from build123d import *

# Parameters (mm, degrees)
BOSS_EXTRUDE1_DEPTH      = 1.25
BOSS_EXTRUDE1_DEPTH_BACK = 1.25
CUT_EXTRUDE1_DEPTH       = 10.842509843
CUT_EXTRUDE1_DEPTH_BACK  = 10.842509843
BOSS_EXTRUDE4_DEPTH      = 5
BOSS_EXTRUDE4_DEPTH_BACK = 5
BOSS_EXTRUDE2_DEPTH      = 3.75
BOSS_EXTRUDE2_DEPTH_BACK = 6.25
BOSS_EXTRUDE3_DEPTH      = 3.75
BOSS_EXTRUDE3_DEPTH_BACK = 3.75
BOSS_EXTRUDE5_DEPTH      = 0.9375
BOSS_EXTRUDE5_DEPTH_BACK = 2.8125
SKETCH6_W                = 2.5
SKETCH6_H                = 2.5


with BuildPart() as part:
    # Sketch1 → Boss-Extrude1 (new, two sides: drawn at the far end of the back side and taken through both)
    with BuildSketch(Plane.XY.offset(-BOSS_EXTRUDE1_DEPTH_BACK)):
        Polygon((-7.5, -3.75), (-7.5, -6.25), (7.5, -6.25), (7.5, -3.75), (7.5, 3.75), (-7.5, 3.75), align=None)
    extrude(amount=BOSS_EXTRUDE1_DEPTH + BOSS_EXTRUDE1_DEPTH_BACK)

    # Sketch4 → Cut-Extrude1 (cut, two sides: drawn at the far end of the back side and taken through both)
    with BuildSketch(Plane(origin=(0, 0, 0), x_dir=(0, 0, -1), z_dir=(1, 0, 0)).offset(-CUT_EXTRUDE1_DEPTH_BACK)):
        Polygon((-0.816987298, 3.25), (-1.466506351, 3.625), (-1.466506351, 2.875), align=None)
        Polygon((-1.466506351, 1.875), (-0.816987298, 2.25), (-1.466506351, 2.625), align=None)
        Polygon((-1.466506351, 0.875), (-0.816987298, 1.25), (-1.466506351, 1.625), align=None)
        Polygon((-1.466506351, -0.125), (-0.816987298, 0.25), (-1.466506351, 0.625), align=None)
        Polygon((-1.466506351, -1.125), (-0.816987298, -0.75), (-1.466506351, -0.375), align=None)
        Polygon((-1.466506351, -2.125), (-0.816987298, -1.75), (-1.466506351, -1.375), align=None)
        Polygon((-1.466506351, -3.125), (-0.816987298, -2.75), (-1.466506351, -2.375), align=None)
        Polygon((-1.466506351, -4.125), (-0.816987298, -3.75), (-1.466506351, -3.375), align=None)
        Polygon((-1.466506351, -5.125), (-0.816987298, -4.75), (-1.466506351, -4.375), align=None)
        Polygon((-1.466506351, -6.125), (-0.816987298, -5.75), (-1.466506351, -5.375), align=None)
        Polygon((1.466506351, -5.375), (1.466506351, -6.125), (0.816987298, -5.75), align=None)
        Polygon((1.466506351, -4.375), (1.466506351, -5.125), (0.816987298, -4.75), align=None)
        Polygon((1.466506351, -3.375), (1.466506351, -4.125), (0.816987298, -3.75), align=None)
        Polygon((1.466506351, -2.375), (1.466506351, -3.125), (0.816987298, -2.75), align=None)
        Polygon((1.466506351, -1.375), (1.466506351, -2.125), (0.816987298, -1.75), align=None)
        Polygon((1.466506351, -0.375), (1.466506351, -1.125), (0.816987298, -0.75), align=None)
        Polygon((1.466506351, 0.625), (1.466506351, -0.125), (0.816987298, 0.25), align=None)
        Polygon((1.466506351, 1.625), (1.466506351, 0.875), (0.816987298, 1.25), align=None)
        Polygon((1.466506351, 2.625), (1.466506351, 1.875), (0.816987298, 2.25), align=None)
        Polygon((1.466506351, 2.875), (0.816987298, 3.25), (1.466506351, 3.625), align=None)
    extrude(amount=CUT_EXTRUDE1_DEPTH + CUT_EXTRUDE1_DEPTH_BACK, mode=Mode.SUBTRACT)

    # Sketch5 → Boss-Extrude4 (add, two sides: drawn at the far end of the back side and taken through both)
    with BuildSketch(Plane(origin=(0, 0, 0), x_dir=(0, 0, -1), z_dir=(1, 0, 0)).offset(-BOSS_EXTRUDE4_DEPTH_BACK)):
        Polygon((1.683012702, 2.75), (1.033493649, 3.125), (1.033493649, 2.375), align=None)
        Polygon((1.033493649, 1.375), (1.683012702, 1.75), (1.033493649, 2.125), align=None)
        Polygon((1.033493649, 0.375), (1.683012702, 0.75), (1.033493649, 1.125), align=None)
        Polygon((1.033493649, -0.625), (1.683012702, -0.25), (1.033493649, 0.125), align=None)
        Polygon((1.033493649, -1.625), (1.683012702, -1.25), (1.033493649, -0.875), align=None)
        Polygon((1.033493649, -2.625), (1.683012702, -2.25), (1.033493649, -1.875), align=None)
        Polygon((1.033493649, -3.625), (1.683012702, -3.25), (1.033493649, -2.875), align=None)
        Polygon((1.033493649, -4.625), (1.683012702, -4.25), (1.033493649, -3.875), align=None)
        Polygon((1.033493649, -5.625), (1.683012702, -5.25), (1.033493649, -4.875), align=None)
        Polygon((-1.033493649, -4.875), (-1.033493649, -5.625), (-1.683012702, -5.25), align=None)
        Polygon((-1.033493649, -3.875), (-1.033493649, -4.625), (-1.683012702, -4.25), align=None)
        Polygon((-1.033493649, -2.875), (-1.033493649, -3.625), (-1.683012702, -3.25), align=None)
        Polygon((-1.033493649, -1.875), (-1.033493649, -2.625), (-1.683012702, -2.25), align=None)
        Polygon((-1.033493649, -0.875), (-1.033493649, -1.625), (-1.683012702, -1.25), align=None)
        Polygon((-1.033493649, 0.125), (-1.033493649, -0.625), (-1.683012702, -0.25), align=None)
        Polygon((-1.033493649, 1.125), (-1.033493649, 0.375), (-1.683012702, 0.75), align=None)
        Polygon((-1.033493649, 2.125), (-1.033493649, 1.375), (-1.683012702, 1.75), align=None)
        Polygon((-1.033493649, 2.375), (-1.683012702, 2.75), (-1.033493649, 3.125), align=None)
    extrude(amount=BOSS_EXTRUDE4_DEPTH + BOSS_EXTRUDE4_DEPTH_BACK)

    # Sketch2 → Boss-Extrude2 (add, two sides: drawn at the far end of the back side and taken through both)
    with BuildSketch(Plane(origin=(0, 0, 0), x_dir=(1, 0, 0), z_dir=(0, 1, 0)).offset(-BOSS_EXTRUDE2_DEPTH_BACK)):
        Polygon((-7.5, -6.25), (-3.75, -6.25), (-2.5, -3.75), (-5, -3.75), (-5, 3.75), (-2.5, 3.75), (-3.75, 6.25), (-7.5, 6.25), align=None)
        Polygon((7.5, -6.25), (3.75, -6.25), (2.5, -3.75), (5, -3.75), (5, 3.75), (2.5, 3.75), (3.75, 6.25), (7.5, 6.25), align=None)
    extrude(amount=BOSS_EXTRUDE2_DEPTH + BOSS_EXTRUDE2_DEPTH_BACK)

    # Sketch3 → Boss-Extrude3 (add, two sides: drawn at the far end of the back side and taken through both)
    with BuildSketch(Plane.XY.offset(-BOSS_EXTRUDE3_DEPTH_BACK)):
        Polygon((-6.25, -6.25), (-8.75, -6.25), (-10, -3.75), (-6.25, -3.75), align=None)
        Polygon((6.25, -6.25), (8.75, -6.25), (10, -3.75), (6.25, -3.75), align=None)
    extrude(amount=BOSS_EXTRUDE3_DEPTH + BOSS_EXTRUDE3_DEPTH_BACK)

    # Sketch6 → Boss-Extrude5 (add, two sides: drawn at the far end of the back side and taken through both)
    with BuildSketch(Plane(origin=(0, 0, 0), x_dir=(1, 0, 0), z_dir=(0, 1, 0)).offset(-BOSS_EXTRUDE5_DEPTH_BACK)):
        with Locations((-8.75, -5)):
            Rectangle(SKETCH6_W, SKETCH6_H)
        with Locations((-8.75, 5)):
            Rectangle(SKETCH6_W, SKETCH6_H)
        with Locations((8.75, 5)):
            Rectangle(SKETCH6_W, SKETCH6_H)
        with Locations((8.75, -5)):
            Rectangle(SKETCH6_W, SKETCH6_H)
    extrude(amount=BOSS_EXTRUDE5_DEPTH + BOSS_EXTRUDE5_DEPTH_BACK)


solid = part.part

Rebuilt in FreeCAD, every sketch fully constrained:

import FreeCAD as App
import Part
import Sketcher

V = App.Vector
Q = App.Units.Quantity

doc = App.newDocument("Part")
body = doc.addObject("PartDesign::Body", "Body")

sketch1 = doc.addObject("Sketcher::SketchObject", "Sketch")
body.addObject(sketch1)
sketch1.AttachmentSupport = (doc.XY_Plane, [""])
sketch1.MapMode = "FlatFace"
sketch1.addGeometry([
    Part.LineSegment(V(-8, -6, 0), V(8, -6, 0)),
    Part.LineSegment(V(8, -6, 0), V(8, 4, 0)),
    Part.LineSegment(V(8, 4, 0), V(-8, 4, 0)),
    Part.LineSegment(V(-8, 4, 0), V(-8, -6, 0)),
], False)
sketch1.addConstraint([
    Sketcher.Constraint("Coincident", 0, 2, 1, 1),
    Sketcher.Constraint("Coincident", 1, 2, 2, 1),
    Sketcher.Constraint("Coincident", 2, 2, 3, 1),
    Sketcher.Constraint("Coincident", 3, 2, 0, 1),
    Sketcher.Constraint("Horizontal", 0),
    Sketcher.Constraint("Vertical", 1),
    Sketcher.Constraint("Horizontal", 2),
    Sketcher.Constraint("Vertical", 3),
    Sketcher.Constraint("DistanceX", 0, 1, 0, 2, 15.0),
    Sketcher.Constraint("DistanceY", 1, 1, 1, 2, 10.0),
    Sketcher.Constraint("DistanceX", -1, 1, 0, 2, 7.5),
    Sketcher.Constraint("DistanceY", 0, 2, -1, 1, 6.25),
])
pad1 = doc.addObject("PartDesign::Pad", "Pad")
body.addObject(pad1)
pad1.Profile = sketch1
pad1.Type = "TwoLengths"
pad1.Length = 1.25
pad1.Length2 = 1.25

sketch2 = doc.addObject("Sketcher::SketchObject", "Sketch001")
body.addObject(sketch2)
sketch2.AttachmentSupport = (doc.YZ_Plane, [""])
sketch2.MapMode = "FlatFace"
sketch2.addGeometry([
    Part.LineSegment(V(3.2, 0.8, 0), V(3.6, 1.5, 0)),
    Part.LineSegment(V(3.6, 1.5, 0), V(2.9, 1.5, 0)),
    Part.LineSegment(V(2.9, 1.5, 0), V(3.2, 0.8, 0)),
    Part.LineSegment(V(1.9, 1.5, 0), V(2.2, 0.8, 0)),
    Part.LineSegment(V(2.2, 0.8, 0), V(2.6, 1.5, 0)),
    Part.LineSegment(V(2.6, 1.5, 0), V(1.9, 1.5, 0)),
    Part.LineSegment(V(0.9, 1.5, 0), V(1.2, 0.8, 0)),
    Part.LineSegment(V(1.2, 0.8, 0), V(1.6, 1.5, 0)),
    Part.LineSegment(V(1.6, 1.5, 0), V(0.9, 1.5, 0)),
    Part.LineSegment(V(-0.1, 1.5, 0), V(0.2, 0.8, 0)),
    Part.LineSegment(V(0.2, 0.8, 0), V(0.6, 1.5, 0)),
    Part.LineSegment(V(0.6, 1.5, 0), V(-0.1, 1.5, 0)),
    Part.LineSegment(V(-1.1, 1.5, 0), V(-0.8, 0.8, 0)),
    Part.LineSegment(V(-0.8, 0.8, 0), V(-0.4, 1.5, 0)),
    Part.LineSegment(V(-0.4, 1.5, 0), V(-1.1, 1.5, 0)),
    Part.LineSegment(V(-2.1, 1.5, 0), V(-1.8, 0.8, 0)),
    Part.LineSegment(V(-1.8, 0.8, 0), V(-1.4, 1.5, 0)),
    Part.LineSegment(V(-1.4, 1.5, 0), V(-2.1, 1.5, 0)),
    Part.LineSegment(V(-3.1, 1.5, 0), V(-2.8, 0.8, 0)),
    Part.LineSegment(V(-2.8, 0.8, 0), V(-2.4, 1.5, 0)),
    Part.LineSegment(V(-2.4, 1.5, 0), V(-3.1, 1.5, 0)),
    Part.LineSegment(V(-4.1, 1.5, 0), V(-3.8, 0.8, 0)),
    Part.LineSegment(V(-3.8, 0.8, 0), V(-3.4, 1.5, 0)),
    Part.LineSegment(V(-3.4, 1.5, 0), V(-4.1, 1.5, 0)),
    Part.LineSegment(V(-5.1, 1.5, 0), V(-4.8, 0.8, 0)),
    Part.LineSegment(V(-4.8, 0.8, 0), V(-4.4, 1.5, 0)),
    Part.LineSegment(V(-4.4, 1.5, 0), V(-5.1, 1.5, 0)),
    Part.LineSegment(V(-6.1, 1.5, 0), V(-5.8, 0.8, 0)),
    Part.LineSegment(V(-5.8, 0.8, 0), V(-5.4, 1.5, 0)),
    Part.LineSegment(V(-5.4, 1.5, 0), V(-6.1, 1.5, 0)),
    Part.LineSegment(V(-6.1, -1.5, 0), V(-5.4, -1.5, 0)),
    Part.LineSegment(V(-5.4, -1.5, 0), V(-5.8, -0.8, 0)),
    Part.LineSegment(V(-5.8, -0.8, 0), V(-6.1, -1.5, 0)),
    Part.LineSegment(V(-5.1, -1.5, 0), V(-4.4, -1.5, 0)),
    Part.LineSegment(V(-4.4, -1.5, 0), V(-4.8, -0.8, 0)),
    Part.LineSegment(V(-4.8, -0.8, 0), V(-5.1, -1.5, 0)),
    Part.LineSegment(V(-4.1, -1.5, 0), V(-3.4, -1.5, 0)),
    Part.LineSegment(V(-3.4, -1.5, 0), V(-3.8, -0.8, 0)),
    Part.LineSegment(V(-3.8, -0.8, 0), V(-4.1, -1.5, 0)),
    Part.LineSegment(V(-3.1, -1.5, 0), V(-2.4, -1.5, 0)),
    Part.LineSegment(V(-2.4, -1.5, 0), V(-2.8, -0.8, 0)),
    Part.LineSegment(V(-2.8, -0.8, 0), V(-3.1, -1.5, 0)),
    Part.LineSegment(V(-2.1, -1.5, 0), V(-1.4, -1.5, 0)),
    Part.LineSegment(V(-1.4, -1.5, 0), V(-1.8, -0.8, 0)),
    Part.LineSegment(V(-1.8, -0.8, 0), V(-2.1, -1.5, 0)),
    Part.LineSegment(V(-1.1, -1.5, 0), V(-0.4, -1.5, 0)),
    Part.LineSegment(V(-0.4, -1.5, 0), V(-0.8, -0.8, 0)),
    Part.LineSegment(V(-0.8, -0.8, 0), V(-1.1, -1.5, 0)),
    Part.LineSegment(V(-0.1, -1.5, 0), V(0.6, -1.5, 0)),
    Part.LineSegment(V(0.6, -1.5, 0), V(0.2, -0.8, 0)),
    Part.LineSegment(V(0.2, -0.8, 0), V(-0.1, -1.5, 0)),
    Part.LineSegment(V(0.9, -1.5, 0), V(1.6, -1.5, 0)),
    Part.LineSegment(V(1.6, -1.5, 0), V(1.2, -0.8, 0)),
    Part.LineSegment(V(1.2, -0.8, 0), V(0.9, -1.5, 0)),
    Part.LineSegment(V(1.9, -1.5, 0), V(2.6, -1.5, 0)),
    Part.LineSegment(V(2.6, -1.5, 0), V(2.2, -0.8, 0)),
    Part.LineSegment(V(2.2, -0.8, 0), V(1.9, -1.5, 0)),
    Part.LineSegment(V(3.2, -0.8, 0), V(2.9, -1.5, 0)),
    Part.LineSegment(V(2.9, -1.5, 0), V(3.6, -1.5, 0)),
    Part.LineSegment(V(3.6, -1.5, 0), V(3.2, -0.8, 0)),
], False)
sketch2.addConstraint([
    Sketcher.Constraint("Coincident", 0, 2, 1, 1),
    Sketcher.Constraint("Coincident", 1, 2, 2, 1),
    Sketcher.Constraint("Coincident", 2, 2, 0, 1),
    Sketcher.Constraint("Coincident", 3, 2, 4, 1),
    Sketcher.Constraint("Coincident", 4, 2, 5, 1),
    Sketcher.Constraint("Coincident", 5, 2, 3, 1),
    Sketcher.Constraint("Coincident", 6, 2, 7, 1),
    Sketcher.Constraint("Coincident", 7, 2, 8, 1),
    Sketcher.Constraint("Coincident", 8, 2, 6, 1),
    Sketcher.Constraint("Coincident", 9, 2, 10, 1),
    Sketcher.Constraint("Coincident", 10, 2, 11, 1),
    Sketcher.Constraint("Coincident", 11, 2, 9, 1),
    Sketcher.Constraint("Coincident", 12, 2, 13, 1),
    Sketcher.Constraint("Coincident", 13, 2, 14, 1),
    Sketcher.Constraint("Coincident", 14, 2, 12, 1),
    Sketcher.Constraint("Coincident", 15, 2, 16, 1),
    Sketcher.Constraint("Coincident", 16, 2, 17, 1),
    Sketcher.Constraint("Coincident", 17, 2, 15, 1),
    Sketcher.Constraint("Coincident", 18, 2, 19, 1),
    Sketcher.Constraint("Coincident", 19, 2, 20, 1),
    Sketcher.Constraint("Coincident", 20, 2, 18, 1),
    Sketcher.Constraint("Coincident", 21, 2, 22, 1),
    Sketcher.Constraint("Coincident", 22, 2, 23, 1),
    Sketcher.Constraint("Coincident", 23, 2, 21, 1),
    Sketcher.Constraint("Coincident", 24, 2, 25, 1),
    Sketcher.Constraint("Coincident", 25, 2, 26, 1),
    Sketcher.Constraint("Coincident", 26, 2, 24, 1),
    Sketcher.Constraint("Coincident", 27, 2, 28, 1),
    Sketcher.Constraint("Coincident", 28, 2, 29, 1),
    Sketcher.Constraint("Coincident", 29, 2, 27, 1),
    Sketcher.Constraint("Coincident", 30, 2, 31, 1),
    Sketcher.Constraint("Coincident", 31, 2, 32, 1),
    Sketcher.Constraint("Coincident", 32, 2, 30, 1),
    Sketcher.Constraint("Coincident", 33, 2, 34, 1),
    Sketcher.Constraint("Coincident", 34, 2, 35, 1),
    Sketcher.Constraint("Coincident", 35, 2, 33, 1),
    Sketcher.Constraint("Coincident", 36, 2, 37, 1),
    Sketcher.Constraint("Coincident", 37, 2, 38, 1),
    Sketcher.Constraint("Coincident", 38, 2, 36, 1),
    Sketcher.Constraint("Coincident", 39, 2, 40, 1),
    Sketcher.Constraint("Coincident", 40, 2, 41, 1),
    Sketcher.Constraint("Coincident", 41, 2, 39, 1),
    Sketcher.Constraint("Coincident", 42, 2, 43, 1),
    Sketcher.Constraint("Coincident", 43, 2, 44, 1),
    Sketcher.Constraint("Coincident", 44, 2, 42, 1),
    Sketcher.Constraint("Coincident", 45, 2, 46, 1),
    Sketcher.Constraint("Coincident", 46, 2, 47, 1),
    Sketcher.Constraint("Coincident", 47, 2, 45, 1),
    Sketcher.Constraint("Coincident", 48, 2, 49, 1),
    Sketcher.Constraint("Coincident", 49, 2, 50, 1),
    Sketcher.Constraint("Coincident", 50, 2, 48, 1),
    Sketcher.Constraint("Coincident", 51, 2, 52, 1),
    Sketcher.Constraint("Coincident", 52, 2, 53, 1),
    Sketcher.Constraint("Coincident", 53, 2, 51, 1),
    Sketcher.Constraint("Coincident", 54, 2, 55, 1),
    Sketcher.Constraint("Coincident", 55, 2, 56, 1),
    Sketcher.Constraint("Coincident", 56, 2, 54, 1),
    Sketcher.Constraint("Coincident", 57, 2, 58, 1),
    Sketcher.Constraint("Coincident", 58, 2, 59, 1),
    Sketcher.Constraint("Coincident", 59, 2, 57, 1),
    Sketcher.Constraint("Horizontal", 1),
    Sketcher.Constraint("Horizontal", 5),
    Sketcher.Constraint("Horizontal", 8),
    Sketcher.Constraint("Horizontal", 11),
    Sketcher.Constraint("Horizontal", 14),
    Sketcher.Constraint("Horizontal", 17),
    Sketcher.Constraint("Horizontal", 20),
    Sketcher.Constraint("Horizontal", 23),
    Sketcher.Constraint("Horizontal", 26),
    Sketcher.Constraint("Horizontal", 29),
    Sketcher.Constraint("Horizontal", 30),
    Sketcher.Constraint("Horizontal", 33),
    Sketcher.Constraint("Horizontal", 36),
    Sketcher.Constraint("Horizontal", 39),
    Sketcher.Constraint("Horizontal", 42),
    Sketcher.Constraint("Horizontal", 45),
    Sketcher.Constraint("Horizontal", 48),
    Sketcher.Constraint("Horizontal", 51),
    Sketcher.Constraint("Horizontal", 54),
    Sketcher.Constraint("Horizontal", 58),
    Sketcher.Constraint("Symmetric", 28, 2, 30, 2, -1),
    Sketcher.Constraint("Symmetric", 27, 2, 31, 2, -1),
    Sketcher.Constraint("Symmetric", 25, 2, 33, 2, -1),
    Sketcher.Constraint("Symmetric", 24, 2, 34, 2, -1),
    Sketcher.Constraint("Symmetric", 22, 2, 36, 2, -1),
    Sketcher.Constraint("Symmetric", 21, 2, 37, 2, -1),
    Sketcher.Constraint("Symmetric", 19, 2, 39, 2, -1),
    Sketcher.Constraint("Symmetric", 18, 2, 40, 2, -1),
    Sketcher.Constraint("Symmetric", 16, 2, 42, 2, -1),
    Sketcher.Constraint("Symmetric", 15, 2, 43, 2, -1),
    Sketcher.Constraint("Symmetric", 13, 2, 45, 2, -1),
    Sketcher.Constraint("Symmetric", 12, 2, 46, 2, -1),
    Sketcher.Constraint("Symmetric", 10, 2, 48, 2, -1),
    Sketcher.Constraint("Symmetric", 9, 2, 49, 2, -1),
    Sketcher.Constraint("Symmetric", 7, 2, 51, 2, -1),
    Sketcher.Constraint("Symmetric", 6, 2, 52, 2, -1),
    Sketcher.Constraint("Symmetric", 4, 2, 54, 2, -1),
    Sketcher.Constraint("Symmetric", 3, 2, 55, 2, -1),
    Sketcher.Constraint("Symmetric", 1, 2, 57, 2, -1),
    Sketcher.Constraint("Symmetric", 2, 2, 59, 2, -1),
    Sketcher.Constraint("Parallel", 2, 3),
    Sketcher.Constraint("Parallel", 0, 4),
    Sketcher.Constraint("Parallel", 3, 6),
    Sketcher.Constraint("Parallel", 4, 7),
    Sketcher.Constraint("Parallel", 6, 9),
    Sketcher.Constraint("Parallel", 7, 10),
    Sketcher.Constraint("Parallel", 9, 12),
    Sketcher.Constraint("Parallel", 10, 13),
    Sketcher.Constraint("Parallel", 12, 15),
    Sketcher.Constraint("Parallel", 13, 16),
    Sketcher.Constraint("Parallel", 15, 18),
    Sketcher.Constraint("Parallel", 16, 19),
    Sketcher.Constraint("Parallel", 18, 21),
    Sketcher.Constraint("Parallel", 19, 22),
    Sketcher.Constraint("Parallel", 21, 24),
    Sketcher.Constraint("Parallel", 22, 25),
    Sketcher.Constraint("Parallel", 24, 27),
    Sketcher.Constraint("Parallel", 25, 28),
    Sketcher.Constraint("Parallel", 27, 31),
    Sketcher.Constraint("Parallel", 28, 32),
    Sketcher.Constraint("Parallel", 32, 35),
    Sketcher.Constraint("Parallel", 35, 38),
    Sketcher.Constraint("Parallel", 38, 41),
    Sketcher.Constraint("Parallel", 41, 44),
    Sketcher.Constraint("Parallel", 44, 47),
    Sketcher.Constraint("Parallel", 47, 50),
    Sketcher.Constraint("Parallel", 50, 53),
    Sketcher.Constraint("Parallel", 53, 56),
    Sketcher.Constraint("Parallel", 55, 59),
    Sketcher.Constraint("Horizontal", 2, 2, 3, 2),
    Sketcher.Constraint("Horizontal", 1, 2, 4, 2),
    Sketcher.Constraint("Horizontal", 3, 2, 6, 2),
    Sketcher.Constraint("Horizontal", 5, 2, 7, 2),
    Sketcher.Constraint("Horizontal", 6, 2, 9, 2),
    Sketcher.Constraint("Horizontal", 8, 2, 10, 2),
    Sketcher.Constraint("Horizontal", 9, 2, 12, 2),
    Sketcher.Constraint("Horizontal", 11, 2, 13, 2),
    Sketcher.Constraint("Horizontal", 12, 2, 15, 2),
    Sketcher.Constraint("Horizontal", 14, 2, 16, 2),
    Sketcher.Constraint("Horizontal", 15, 2, 18, 2),
    Sketcher.Constraint("Horizontal", 17, 2, 19, 2),
    Sketcher.Constraint("Horizontal", 18, 2, 21, 2),
    Sketcher.Constraint("Horizontal", 20, 2, 22, 2),
    Sketcher.Constraint("Horizontal", 21, 2, 24, 2),
    Sketcher.Constraint("Horizontal", 23, 2, 25, 2),
    Sketcher.Constraint("Horizontal", 24, 2, 27, 2),
    Sketcher.Constraint("Horizontal", 26, 2, 28, 2),
    Sketcher.Constraint("Angle", 0, Q("60 deg")),
    Sketcher.Constraint("DistanceX", 3, 2, 2, 2, 1.0),
    Sketcher.Constraint("DistanceX", 6, 2, 3, 2, 1.0),
    Sketcher.Constraint("DistanceX", 9, 2, 6, 2, 1.0),
    Sketcher.Constraint("DistanceX", 12, 2, 9, 2, 1.0),
    Sketcher.Constraint("DistanceX", 15, 2, 12, 2, 1.0),
    Sketcher.Constraint("DistanceX", 18, 2, 15, 2, 1.0),
    Sketcher.Constraint("DistanceX", 21, 2, 18, 2, 1.0),
    Sketcher.Constraint("DistanceX", 24, 2, 21, 2, 1.0),
    Sketcher.Constraint("DistanceX", 27, 2, 24, 2, 1.0),
    Sketcher.Constraint("DistanceX", 1, 2, 1, 1, 0.75),
    Sketcher.Constraint("DistanceX", -1, 1, 2, 2, 3.25),
    Sketcher.Constraint("DistanceY", -1, 1, 0, 2, 1.466506),
])
pocket1 = doc.addObject("PartDesign::Pocket", "Pocket")
body.addObject(pocket1)
pocket1.Profile = sketch2
pocket1.Type = "ThroughAll"
pocket1.Midplane = True

sketch3 = doc.addObject("Sketcher::SketchObject", "Sketch002")
body.addObject(sketch3)
sketch3.AttachmentSupport = (doc.YZ_Plane, [""])
sketch3.MapMode = "FlatFace"
sketch3.addGeometry([
    Part.LineSegment(V(2.8, -1.7, 0), V(3.1, -1, 0)),
    Part.LineSegment(V(3.1, -1, 0), V(2.4, -1, 0)),
    Part.LineSegment(V(2.4, -1, 0), V(2.8, -1.7, 0)),
    Part.LineSegment(V(1.4, -1, 0), V(1.8, -1.7, 0)),
    Part.LineSegment(V(1.8, -1.7, 0), V(2.1, -1, 0)),
    Part.LineSegment(V(2.1, -1, 0), V(1.4, -1, 0)),
    Part.LineSegment(V(0.4, -1, 0), V(0.8, -1.7, 0)),
    Part.LineSegment(V(0.8, -1.7, 0), V(1.1, -1, 0)),
    Part.LineSegment(V(1.1, -1, 0), V(0.4, -1, 0)),
    Part.LineSegment(V(-0.6, -1, 0), V(-0.2, -1.7, 0)),
    Part.LineSegment(V(-0.2, -1.7, 0), V(0.1, -1, 0)),
    Part.LineSegment(V(0.1, -1, 0), V(-0.6, -1, 0)),
    Part.LineSegment(V(-1.6, -1, 0), V(-1.2, -1.7, 0)),
    Part.LineSegment(V(-1.2, -1.7, 0), V(-0.9, -1, 0)),
    Part.LineSegment(V(-0.9, -1, 0), V(-1.6, -1, 0)),
    Part.LineSegment(V(-2.6, -1, 0), V(-2.2, -1.7, 0)),
    Part.LineSegment(V(-2.2, -1.7, 0), V(-1.9, -1, 0)),
    Part.LineSegment(V(-1.9, -1, 0), V(-2.6, -1, 0)),
    Part.LineSegment(V(-3.6, -1, 0), V(-3.2, -1.7, 0)),
    Part.LineSegment(V(-3.2, -1.7, 0), V(-2.9, -1, 0)),
    Part.LineSegment(V(-2.9, -1, 0), V(-3.6, -1, 0)),
    Part.LineSegment(V(-4.6, -1, 0), V(-4.2, -1.7, 0)),
    Part.LineSegment(V(-4.2, -1.7, 0), V(-3.9, -1, 0)),
    Part.LineSegment(V(-3.9, -1, 0), V(-4.6, -1, 0)),
    Part.LineSegment(V(-5.6, -1, 0), V(-5.2, -1.7, 0)),
    Part.LineSegment(V(-5.2, -1.7, 0), V(-4.9, -1, 0)),
    Part.LineSegment(V(-4.9, -1, 0), V(-5.6, -1, 0)),
    Part.LineSegment(V(-5.6, 1, 0), V(-4.9, 1, 0)),
    Part.LineSegment(V(-4.9, 1, 0), V(-5.2, 1.7, 0)),
    Part.LineSegment(V(-5.2, 1.7, 0), V(-5.6, 1, 0)),
    Part.LineSegment(V(-4.6, 1, 0), V(-3.9, 1, 0)),
    Part.LineSegment(V(-3.9, 1, 0), V(-4.2, 1.7, 0)),
    Part.LineSegment(V(-4.2, 1.7, 0), V(-4.6, 1, 0)),
    Part.LineSegment(V(-3.6, 1, 0), V(-2.9, 1, 0)),
    Part.LineSegment(V(-2.9, 1, 0), V(-3.2, 1.7, 0)),
    Part.LineSegment(V(-3.2, 1.7, 0), V(-3.6, 1, 0)),
    Part.LineSegment(V(-2.6, 1, 0), V(-1.9, 1, 0)),
    Part.LineSegment(V(-1.9, 1, 0), V(-2.2, 1.7, 0)),
    Part.LineSegment(V(-2.2, 1.7, 0), V(-2.6, 1, 0)),
    Part.LineSegment(V(-1.6, 1, 0), V(-0.9, 1, 0)),
    Part.LineSegment(V(-0.9, 1, 0), V(-1.2, 1.7, 0)),
    Part.LineSegment(V(-1.2, 1.7, 0), V(-1.6, 1, 0)),
    Part.LineSegment(V(-0.6, 1, 0), V(0.1, 1, 0)),
    Part.LineSegment(V(0.1, 1, 0), V(-0.2, 1.7, 0)),
    Part.LineSegment(V(-0.2, 1.7, 0), V(-0.6, 1, 0)),
    Part.LineSegment(V(0.4, 1, 0), V(1.1, 1, 0)),
    Part.LineSegment(V(1.1, 1, 0), V(0.8, 1.7, 0)),
    Part.LineSegment(V(0.8, 1.7, 0), V(0.4, 1, 0)),
    Part.LineSegment(V(1.4, 1, 0), V(2.1, 1, 0)),
    Part.LineSegment(V(2.1, 1, 0), V(1.8, 1.7, 0)),
    Part.LineSegment(V(1.8, 1.7, 0), V(1.4, 1, 0)),
    Part.LineSegment(V(2.8, 1.7, 0), V(2.4, 1, 0)),
    Part.LineSegment(V(2.4, 1, 0), V(3.1, 1, 0)),
    Part.LineSegment(V(3.1, 1, 0), V(2.8, 1.7, 0)),
], False)
sketch3.addConstraint([
    Sketcher.Constraint("Coincident", 0, 2, 1, 1),
    Sketcher.Constraint("Coincident", 1, 2, 2, 1),
    Sketcher.Constraint("Coincident", 2, 2, 0, 1),
    Sketcher.Constraint("Coincident", 3, 2, 4, 1),
    Sketcher.Constraint("Coincident", 4, 2, 5, 1),
    Sketcher.Constraint("Coincident", 5, 2, 3, 1),
    Sketcher.Constraint("Coincident", 6, 2, 7, 1),
    Sketcher.Constraint("Coincident", 7, 2, 8, 1),
    Sketcher.Constraint("Coincident", 8, 2, 6, 1),
    Sketcher.Constraint("Coincident", 9, 2, 10, 1),
    Sketcher.Constraint("Coincident", 10, 2, 11, 1),
    Sketcher.Constraint("Coincident", 11, 2, 9, 1),
    Sketcher.Constraint("Coincident", 12, 2, 13, 1),
    Sketcher.Constraint("Coincident", 13, 2, 14, 1),
    Sketcher.Constraint("Coincident", 14, 2, 12, 1),
    Sketcher.Constraint("Coincident", 15, 2, 16, 1),
    Sketcher.Constraint("Coincident", 16, 2, 17, 1),
    Sketcher.Constraint("Coincident", 17, 2, 15, 1),
    Sketcher.Constraint("Coincident", 18, 2, 19, 1),
    Sketcher.Constraint("Coincident", 19, 2, 20, 1),
    Sketcher.Constraint("Coincident", 20, 2, 18, 1),
    Sketcher.Constraint("Coincident", 21, 2, 22, 1),
    Sketcher.Constraint("Coincident", 22, 2, 23, 1),
    Sketcher.Constraint("Coincident", 23, 2, 21, 1),
    Sketcher.Constraint("Coincident", 24, 2, 25, 1),
    Sketcher.Constraint("Coincident", 25, 2, 26, 1),
    Sketcher.Constraint("Coincident", 26, 2, 24, 1),
    Sketcher.Constraint("Coincident", 27, 2, 28, 1),
    Sketcher.Constraint("Coincident", 28, 2, 29, 1),
    Sketcher.Constraint("Coincident", 29, 2, 27, 1),
    Sketcher.Constraint("Coincident", 30, 2, 31, 1),
    Sketcher.Constraint("Coincident", 31, 2, 32, 1),
    Sketcher.Constraint("Coincident", 32, 2, 30, 1),
    Sketcher.Constraint("Coincident", 33, 2, 34, 1),
    Sketcher.Constraint("Coincident", 34, 2, 35, 1),
    Sketcher.Constraint("Coincident", 35, 2, 33, 1),
    Sketcher.Constraint("Coincident", 36, 2, 37, 1),
    Sketcher.Constraint("Coincident", 37, 2, 38, 1),
    Sketcher.Constraint("Coincident", 38, 2, 36, 1),
    Sketcher.Constraint("Coincident", 39, 2, 40, 1),
    Sketcher.Constraint("Coincident", 40, 2, 41, 1),
    Sketcher.Constraint("Coincident", 41, 2, 39, 1),
    Sketcher.Constraint("Coincident", 42, 2, 43, 1),
    Sketcher.Constraint("Coincident", 43, 2, 44, 1),
    Sketcher.Constraint("Coincident", 44, 2, 42, 1),
    Sketcher.Constraint("Coincident", 45, 2, 46, 1),
    Sketcher.Constraint("Coincident", 46, 2, 47, 1),
    Sketcher.Constraint("Coincident", 47, 2, 45, 1),
    Sketcher.Constraint("Coincident", 48, 2, 49, 1),
    Sketcher.Constraint("Coincident", 49, 2, 50, 1),
    Sketcher.Constraint("Coincident", 50, 2, 48, 1),
    Sketcher.Constraint("Coincident", 51, 2, 52, 1),
    Sketcher.Constraint("Coincident", 52, 2, 53, 1),
    Sketcher.Constraint("Coincident", 53, 2, 51, 1),
    Sketcher.Constraint("Horizontal", 1),
    Sketcher.Constraint("Horizontal", 5),
    Sketcher.Constraint("Horizontal", 8),
    Sketcher.Constraint("Horizontal", 11),
    Sketcher.Constraint("Horizontal", 14),
    Sketcher.Constraint("Horizontal", 17),
    Sketcher.Constraint("Horizontal", 20),
    Sketcher.Constraint("Horizontal", 23),
    Sketcher.Constraint("Horizontal", 26),
    Sketcher.Constraint("Horizontal", 27),
    Sketcher.Constraint("Horizontal", 30),
    Sketcher.Constraint("Horizontal", 33),
    Sketcher.Constraint("Horizontal", 36),
    Sketcher.Constraint("Horizontal", 39),
    Sketcher.Constraint("Horizontal", 42),
    Sketcher.Constraint("Horizontal", 45),
    Sketcher.Constraint("Horizontal", 48),
    Sketcher.Constraint("Horizontal", 52),
    Sketcher.Constraint("Symmetric", 25, 2, 27, 2, -1),
    Sketcher.Constraint("Symmetric", 24, 2, 28, 2, -1),
    Sketcher.Constraint("Symmetric", 22, 2, 30, 2, -1),
    Sketcher.Constraint("Symmetric", 21, 2, 31, 2, -1),
    Sketcher.Constraint("Symmetric", 19, 2, 33, 2, -1),
    Sketcher.Constraint("Symmetric", 18, 2, 34, 2, -1),
    Sketcher.Constraint("Symmetric", 16, 2, 36, 2, -1),
    Sketcher.Constraint("Symmetric", 15, 2, 37, 2, -1),
    Sketcher.Constraint("Symmetric", 13, 2, 39, 2, -1),
    Sketcher.Constraint("Symmetric", 12, 2, 40, 2, -1),
    Sketcher.Constraint("Symmetric", 10, 2, 42, 2, -1),
    Sketcher.Constraint("Symmetric", 9, 2, 43, 2, -1),
    Sketcher.Constraint("Symmetric", 7, 2, 45, 2, -1),
    Sketcher.Constraint("Symmetric", 6, 2, 46, 2, -1),
    Sketcher.Constraint("Symmetric", 4, 2, 48, 2, -1),
    Sketcher.Constraint("Symmetric", 3, 2, 49, 2, -1),
    Sketcher.Constraint("Symmetric", 1, 2, 51, 2, -1),
    Sketcher.Constraint("Symmetric", 2, 2, 53, 2, -1),
    Sketcher.Constraint("Parallel", 2, 3),
    Sketcher.Constraint("Parallel", 0, 4),
    Sketcher.Constraint("Parallel", 3, 6),
    Sketcher.Constraint("Parallel", 4, 7),
    Sketcher.Constraint("Parallel", 6, 9),
    Sketcher.Constraint("Parallel", 7, 10),
    Sketcher.Constraint("Parallel", 9, 12),
    Sketcher.Constraint("Parallel", 10, 13),
    Sketcher.Constraint("Parallel", 12, 15),
    Sketcher.Constraint("Parallel", 13, 16),
    Sketcher.Constraint("Parallel", 15, 18),
    Sketcher.Constraint("Parallel", 16, 19),
    Sketcher.Constraint("Parallel", 18, 21),
    Sketcher.Constraint("Parallel", 19, 22),
    Sketcher.Constraint("Parallel", 21, 24),
    Sketcher.Constraint("Parallel", 22, 25),
    Sketcher.Constraint("Parallel", 24, 28),
    Sketcher.Constraint("Parallel", 25, 29),
    Sketcher.Constraint("Parallel", 29, 32),
    Sketcher.Constraint("Parallel", 32, 35),
    Sketcher.Constraint("Parallel", 35, 38),
    Sketcher.Constraint("Parallel", 38, 41),
    Sketcher.Constraint("Parallel", 41, 44),
    Sketcher.Constraint("Parallel", 44, 47),
    Sketcher.Constraint("Parallel", 47, 50),
    Sketcher.Constraint("Parallel", 49, 53),
    Sketcher.Constraint("Horizontal", 2, 2, 3, 2),
    Sketcher.Constraint("Horizontal", 1, 2, 4, 2),
    Sketcher.Constraint("Horizontal", 3, 2, 6, 2),
    Sketcher.Constraint("Horizontal", 5, 2, 7, 2),
    Sketcher.Constraint("Horizontal", 6, 2, 9, 2),
    Sketcher.Constraint("Horizontal", 8, 2, 10, 2),
    Sketcher.Constraint("Horizontal", 9, 2, 12, 2),
    Sketcher.Constraint("Horizontal", 11, 2, 13, 2),
    Sketcher.Constraint("Horizontal", 12, 2, 15, 2),
    Sketcher.Constraint("Horizontal", 14, 2, 16, 2),
    Sketcher.Constraint("Horizontal", 15, 2, 18, 2),
    Sketcher.Constraint("Horizontal", 17, 2, 19, 2),
    Sketcher.Constraint("Horizontal", 18, 2, 21, 2),
    Sketcher.Constraint("Horizontal", 20, 2, 22, 2),
    Sketcher.Constraint("Horizontal", 21, 2, 24, 2),
    Sketcher.Constraint("Horizontal", 23, 2, 25, 2),
    Sketcher.Constraint("Angle", 0, Q("60 deg")),
    Sketcher.Constraint("DistanceX", 3, 2, 2, 2, 1.0),
    Sketcher.Constraint("DistanceX", 6, 2, 3, 2, 1.0),
    Sketcher.Constraint("DistanceX", 9, 2, 6, 2, 1.0),
    Sketcher.Constraint("DistanceX", 12, 2, 9, 2, 1.0),
    Sketcher.Constraint("DistanceX", 15, 2, 12, 2, 1.0),
    Sketcher.Constraint("DistanceX", 18, 2, 15, 2, 1.0),
    Sketcher.Constraint("DistanceX", 21, 2, 18, 2, 1.0),
    Sketcher.Constraint("DistanceX", 24, 2, 21, 2, 1.0),
    Sketcher.Constraint("DistanceX", 1, 2, 1, 1, 0.75),
    Sketcher.Constraint("DistanceX", -1, 1, 2, 2, 2.75),
    Sketcher.Constraint("DistanceY", 0, 2, -1, 1, 1.033494),
])
pad2 = doc.addObject("PartDesign::Pad", "Pad001")
body.addObject(pad2)
pad2.Profile = sketch3
pad2.Type = "TwoLengths"
pad2.Length = 5
pad2.Length2 = 5

sketch4 = doc.addObject("Sketcher::SketchObject", "Sketch003")
body.addObject(sketch4)
sketch4.AttachmentSupport = (doc.XZ_Plane, [""])
sketch4.MapMode = "FlatFace"
sketch4.addGeometry([
    Part.LineSegment(V(-7.5, 6.2, 0), V(-3.8, 6.2, 0)),
    Part.LineSegment(V(-3.8, 6.2, 0), V(-2.5, 3.8, 0)),
    Part.LineSegment(V(-2.5, 3.8, 0), V(-5, 3.8, 0)),
    Part.LineSegment(V(-5, 3.8, 0), V(-5, -3.8, 0)),
    Part.LineSegment(V(-5, -3.8, 0), V(-2.5, -3.8, 0)),
    Part.LineSegment(V(-2.5, -3.8, 0), V(-3.8, -6.2, 0)),
    Part.LineSegment(V(-3.8, -6.2, 0), V(-7.5, -6.2, 0)),
    Part.LineSegment(V(-7.5, -6.2, 0), V(-7.5, 6.2, 0)),
    Part.LineSegment(V(3.8, 6.2, 0), V(7.5, 6.2, 0)),
    Part.LineSegment(V(7.5, 6.2, 0), V(7.5, -6.2, 0)),
    Part.LineSegment(V(7.5, -6.2, 0), V(3.8, -6.2, 0)),
    Part.LineSegment(V(3.8, -6.2, 0), V(2.5, -3.8, 0)),
    Part.LineSegment(V(2.5, -3.8, 0), V(5, -3.8, 0)),
    Part.LineSegment(V(5, -3.8, 0), V(5, 3.8, 0)),
    Part.LineSegment(V(5, 3.8, 0), V(2.5, 3.8, 0)),
    Part.LineSegment(V(2.5, 3.8, 0), V(3.8, 6.2, 0)),
], False)
sketch4.addConstraint([
    Sketcher.Constraint("Coincident", 0, 2, 1, 1),
    Sketcher.Constraint("Coincident", 1, 2, 2, 1),
    Sketcher.Constraint("Coincident", 2, 2, 3, 1),
    Sketcher.Constraint("Coincident", 3, 2, 4, 1),
    Sketcher.Constraint("Coincident", 4, 2, 5, 1),
    Sketcher.Constraint("Coincident", 5, 2, 6, 1),
    Sketcher.Constraint("Coincident", 6, 2, 7, 1),
    Sketcher.Constraint("Coincident", 7, 2, 0, 1),
    Sketcher.Constraint("Coincident", 8, 2, 9, 1),
    Sketcher.Constraint("Coincident", 9, 2, 10, 1),
    Sketcher.Constraint("Coincident", 10, 2, 11, 1),
    Sketcher.Constraint("Coincident", 11, 2, 12, 1),
    Sketcher.Constraint("Coincident", 12, 2, 13, 1),
    Sketcher.Constraint("Coincident", 13, 2, 14, 1),
    Sketcher.Constraint("Coincident", 14, 2, 15, 1),
    Sketcher.Constraint("Coincident", 15, 2, 8, 1),
    Sketcher.Constraint("Horizontal", 0),
    Sketcher.Constraint("Horizontal", 2),
    Sketcher.Constraint("Vertical", 3),
    Sketcher.Constraint("Horizontal", 4),
    Sketcher.Constraint("Horizontal", 6),
    Sketcher.Constraint("Vertical", 7),
    Sketcher.Constraint("Horizontal", 8),
    Sketcher.Constraint("Vertical", 9),
    Sketcher.Constraint("Horizontal", 10),
    Sketcher.Constraint("Horizontal", 12),
    Sketcher.Constraint("Vertical", 13),
    Sketcher.Constraint("Horizontal", 14),
    Sketcher.Constraint("Symmetric", 6, 2, 8, 2, -1, 1),
    Sketcher.Constraint("Symmetric", 0, 2, 10, 2, -1, 1),
    Sketcher.Constraint("Symmetric", 1, 2, 11, 2, -1, 1),
    Sketcher.Constraint("Symmetric", 3, 2, 13, 2, -1, 1),
    Sketcher.Constraint("Symmetric", 5, 2, 10, 2, -2),
    Sketcher.Constraint("Symmetric", 4, 2, 11, 2, -2),
    Sketcher.Constraint("Parallel", 5, 15),
    Sketcher.Constraint("Vertical", 11, 2, 14, 2),
    Sketcher.Constraint("DistanceX", 2, 2, 2, 1, 2.5),
    Sketcher.Constraint("DistanceY", 3, 2, 3, 1, 7.5),
    Sketcher.Constraint("DistanceY", 7, 1, 7, 2, 12.5),
    Sketcher.Constraint("DistanceX", 2, 2, -1, 1, 5.0),
    Sketcher.Constraint("DistanceX", 6, 2, 4, 2, 5.0),
    Sketcher.Constraint("DistanceX", 0, 1, 0, 2, 3.75),
])
pad3 = doc.addObject("PartDesign::Pad", "Pad002")
body.addObject(pad3)
pad3.Profile = sketch4
pad3.Type = "TwoLengths"
pad3.Length = 3.75
pad3.Length2 = 6.25
pad3.Reversed = True

sketch5 = doc.addObject("Sketcher::SketchObject", "Sketch004")
body.addObject(sketch5)
sketch5.AttachmentSupport = (doc.XY_Plane, [""])
sketch5.MapMode = "FlatFace"
sketch5.addGeometry([
    Part.LineSegment(V(-8.8, -6.2, 0), V(-6.2, -6.2, 0)),
    Part.LineSegment(V(-6.2, -6.2, 0), V(-6.2, -3.8, 0)),
    Part.LineSegment(V(-6.2, -3.8, 0), V(-10, -3.8, 0)),
    Part.LineSegment(V(-10, -3.8, 0), V(-8.8, -6.2, 0)),
    Part.LineSegment(V(6.2, -6.2, 0), V(8.8, -6.2, 0)),
    Part.LineSegment(V(8.8, -6.2, 0), V(10, -3.8, 0)),
    Part.LineSegment(V(10, -3.8, 0), V(6.2, -3.8, 0)),
    Part.LineSegment(V(6.2, -3.8, 0), V(6.2, -6.2, 0)),
], False)
sketch5.addConstraint([
    Sketcher.Constraint("Coincident", 0, 2, 1, 1),
    Sketcher.Constraint("Coincident", 1, 2, 2, 1),
    Sketcher.Constraint("Coincident", 2, 2, 3, 1),
    Sketcher.Constraint("Coincident", 3, 2, 0, 1),
    Sketcher.Constraint("Coincident", 4, 2, 5, 1),
    Sketcher.Constraint("Coincident", 5, 2, 6, 1),
    Sketcher.Constraint("Coincident", 6, 2, 7, 1),
    Sketcher.Constraint("Coincident", 7, 2, 4, 1),
    Sketcher.Constraint("Horizontal", 0),
    Sketcher.Constraint("Vertical", 1),
    Sketcher.Constraint("Horizontal", 2),
    Sketcher.Constraint("Horizontal", 4),
    Sketcher.Constraint("Horizontal", 6),
    Sketcher.Constraint("Vertical", 7),
    Sketcher.Constraint("Symmetric", 3, 2, 4, 2, -2),
    Sketcher.Constraint("Symmetric", 2, 2, 5, 2, -2),
    Sketcher.Constraint("Equal", 0, 4),
    Sketcher.Constraint("Equal", 4, 1),
    Sketcher.Constraint("DistanceX", 0, 1, 0, 2, 2.5),
    Sketcher.Constraint("DistanceX", 2, 2, -1, 1, 10.0),
    Sketcher.Constraint("DistanceX", 0, 2, 4, 2, 15.0),
    Sketcher.Constraint("DistanceY", 0, 2, -1, 1, 6.25),
])
pad4 = doc.addObject("PartDesign::Pad", "Pad003")
body.addObject(pad4)
pad4.Profile = sketch5
pad4.Type = "TwoLengths"
pad4.Length = 3.75
pad4.Length2 = 3.75

sketch6 = doc.addObject("Sketcher::SketchObject", "Sketch005")
body.addObject(sketch6)
sketch6.AttachmentSupport = (doc.XZ_Plane, [""])
sketch6.MapMode = "FlatFace"
sketch6.addGeometry([
    Part.LineSegment(V(-10, 3.8, 0), V(-10, 6.2, 0)),
    Part.LineSegment(V(-10, 6.2, 0), V(-7.5, 6.2, 0)),
    Part.LineSegment(V(-7.5, 6.2, 0), V(-7.5, 3.8, 0)),
    Part.LineSegment(V(-7.5, 3.8, 0), V(-10, 3.8, 0)),
    Part.LineSegment(V(-10, -6.2, 0), V(-10, -3.8, 0)),
    Part.LineSegment(V(-10, -3.8, 0), V(-7.5, -3.8, 0)),
    Part.LineSegment(V(-7.5, -3.8, 0), V(-7.5, -6.2, 0)),
    Part.LineSegment(V(-7.5, -6.2, 0), V(-10, -6.2, 0)),
    Part.LineSegment(V(7.5, -6.2, 0), V(7.5, -3.8, 0)),
    Part.LineSegment(V(7.5, -3.8, 0), V(10, -3.8, 0)),
    Part.LineSegment(V(10, -3.8, 0), V(10, -6.2, 0)),
    Part.LineSegment(V(10, -6.2, 0), V(7.5, -6.2, 0)),
    Part.LineSegment(V(7.5, 3.8, 0), V(7.5, 6.2, 0)),
    Part.LineSegment(V(7.5, 6.2, 0), V(10, 6.2, 0)),
    Part.LineSegment(V(10, 6.2, 0), V(10, 3.8, 0)),
    Part.LineSegment(V(10, 3.8, 0), V(7.5, 3.8, 0)),
], False)
sketch6.addConstraint([
    Sketcher.Constraint("Coincident", 0, 2, 1, 1),
    Sketcher.Constraint("Coincident", 1, 2, 2, 1),
    Sketcher.Constraint("Coincident", 2, 2, 3, 1),
    Sketcher.Constraint("Coincident", 3, 2, 0, 1),
    Sketcher.Constraint("Coincident", 4, 2, 5, 1),
    Sketcher.Constraint("Coincident", 5, 2, 6, 1),
    Sketcher.Constraint("Coincident", 6, 2, 7, 1),
    Sketcher.Constraint("Coincident", 7, 2, 4, 1),
    Sketcher.Constraint("Coincident", 8, 2, 9, 1),
    Sketcher.Constraint("Coincident", 9, 2, 10, 1),
    Sketcher.Constraint("Coincident", 10, 2, 11, 1),
    Sketcher.Constraint("Coincident", 11, 2, 8, 1),
    Sketcher.Constraint("Coincident", 12, 2, 13, 1),
    Sketcher.Constraint("Coincident", 13, 2, 14, 1),
    Sketcher.Constraint("Coincident", 14, 2, 15, 1),
    Sketcher.Constraint("Coincident", 15, 2, 12, 1),
    Sketcher.Constraint("Vertical", 0),
    Sketcher.Constraint("Horizontal", 1),
    Sketcher.Constraint("Vertical", 2),
    Sketcher.Constraint("Horizontal", 3),
    Sketcher.Constraint("Vertical", 4),
    Sketcher.Constraint("Horizontal", 5),
    Sketcher.Constraint("Vertical", 6),
    Sketcher.Constraint("Horizontal", 7),
    Sketcher.Constraint("Vertical", 8),
    Sketcher.Constraint("Horizontal", 9),
    Sketcher.Constraint("Vertical", 10),
    Sketcher.Constraint("Horizontal", 11),
    Sketcher.Constraint("Vertical", 12),
    Sketcher.Constraint("Horizontal", 13),
    Sketcher.Constraint("Vertical", 14),
    Sketcher.Constraint("Horizontal", 15),
    Sketcher.Constraint("Symmetric", 2, 2, 8, 2, -1, 1),
    Sketcher.Constraint("Symmetric", 0, 2, 10, 2, -1, 1),
    Sketcher.Constraint("Symmetric", 6, 2, 12, 2, -1, 1),
    Sketcher.Constraint("Symmetric", 4, 2, 14, 2, -1, 1),
    Sketcher.Constraint("Symmetric", 5, 2, 8, 2, -2),
    Sketcher.Constraint("Symmetric", 7, 2, 10, 2, -2),
    Sketcher.Constraint("Equal", 15, 0),
    Sketcher.Constraint("DistanceX", 1, 1, 1, 2, 2.5),
    Sketcher.Constraint("DistanceX", 0, 2, -1, 1, 10.0),
    Sketcher.Constraint("DistanceY", 4, 2, 0, 2, 10.0),
])
pad5 = doc.addObject("PartDesign::Pad", "Pad004")
body.addObject(pad5)
pad5.Profile = sketch6
pad5.Type = "TwoLengths"
pad5.Length = 0.9375
pad5.Length2 = 2.8125
pad5.Reversed = True

doc.recompute()
